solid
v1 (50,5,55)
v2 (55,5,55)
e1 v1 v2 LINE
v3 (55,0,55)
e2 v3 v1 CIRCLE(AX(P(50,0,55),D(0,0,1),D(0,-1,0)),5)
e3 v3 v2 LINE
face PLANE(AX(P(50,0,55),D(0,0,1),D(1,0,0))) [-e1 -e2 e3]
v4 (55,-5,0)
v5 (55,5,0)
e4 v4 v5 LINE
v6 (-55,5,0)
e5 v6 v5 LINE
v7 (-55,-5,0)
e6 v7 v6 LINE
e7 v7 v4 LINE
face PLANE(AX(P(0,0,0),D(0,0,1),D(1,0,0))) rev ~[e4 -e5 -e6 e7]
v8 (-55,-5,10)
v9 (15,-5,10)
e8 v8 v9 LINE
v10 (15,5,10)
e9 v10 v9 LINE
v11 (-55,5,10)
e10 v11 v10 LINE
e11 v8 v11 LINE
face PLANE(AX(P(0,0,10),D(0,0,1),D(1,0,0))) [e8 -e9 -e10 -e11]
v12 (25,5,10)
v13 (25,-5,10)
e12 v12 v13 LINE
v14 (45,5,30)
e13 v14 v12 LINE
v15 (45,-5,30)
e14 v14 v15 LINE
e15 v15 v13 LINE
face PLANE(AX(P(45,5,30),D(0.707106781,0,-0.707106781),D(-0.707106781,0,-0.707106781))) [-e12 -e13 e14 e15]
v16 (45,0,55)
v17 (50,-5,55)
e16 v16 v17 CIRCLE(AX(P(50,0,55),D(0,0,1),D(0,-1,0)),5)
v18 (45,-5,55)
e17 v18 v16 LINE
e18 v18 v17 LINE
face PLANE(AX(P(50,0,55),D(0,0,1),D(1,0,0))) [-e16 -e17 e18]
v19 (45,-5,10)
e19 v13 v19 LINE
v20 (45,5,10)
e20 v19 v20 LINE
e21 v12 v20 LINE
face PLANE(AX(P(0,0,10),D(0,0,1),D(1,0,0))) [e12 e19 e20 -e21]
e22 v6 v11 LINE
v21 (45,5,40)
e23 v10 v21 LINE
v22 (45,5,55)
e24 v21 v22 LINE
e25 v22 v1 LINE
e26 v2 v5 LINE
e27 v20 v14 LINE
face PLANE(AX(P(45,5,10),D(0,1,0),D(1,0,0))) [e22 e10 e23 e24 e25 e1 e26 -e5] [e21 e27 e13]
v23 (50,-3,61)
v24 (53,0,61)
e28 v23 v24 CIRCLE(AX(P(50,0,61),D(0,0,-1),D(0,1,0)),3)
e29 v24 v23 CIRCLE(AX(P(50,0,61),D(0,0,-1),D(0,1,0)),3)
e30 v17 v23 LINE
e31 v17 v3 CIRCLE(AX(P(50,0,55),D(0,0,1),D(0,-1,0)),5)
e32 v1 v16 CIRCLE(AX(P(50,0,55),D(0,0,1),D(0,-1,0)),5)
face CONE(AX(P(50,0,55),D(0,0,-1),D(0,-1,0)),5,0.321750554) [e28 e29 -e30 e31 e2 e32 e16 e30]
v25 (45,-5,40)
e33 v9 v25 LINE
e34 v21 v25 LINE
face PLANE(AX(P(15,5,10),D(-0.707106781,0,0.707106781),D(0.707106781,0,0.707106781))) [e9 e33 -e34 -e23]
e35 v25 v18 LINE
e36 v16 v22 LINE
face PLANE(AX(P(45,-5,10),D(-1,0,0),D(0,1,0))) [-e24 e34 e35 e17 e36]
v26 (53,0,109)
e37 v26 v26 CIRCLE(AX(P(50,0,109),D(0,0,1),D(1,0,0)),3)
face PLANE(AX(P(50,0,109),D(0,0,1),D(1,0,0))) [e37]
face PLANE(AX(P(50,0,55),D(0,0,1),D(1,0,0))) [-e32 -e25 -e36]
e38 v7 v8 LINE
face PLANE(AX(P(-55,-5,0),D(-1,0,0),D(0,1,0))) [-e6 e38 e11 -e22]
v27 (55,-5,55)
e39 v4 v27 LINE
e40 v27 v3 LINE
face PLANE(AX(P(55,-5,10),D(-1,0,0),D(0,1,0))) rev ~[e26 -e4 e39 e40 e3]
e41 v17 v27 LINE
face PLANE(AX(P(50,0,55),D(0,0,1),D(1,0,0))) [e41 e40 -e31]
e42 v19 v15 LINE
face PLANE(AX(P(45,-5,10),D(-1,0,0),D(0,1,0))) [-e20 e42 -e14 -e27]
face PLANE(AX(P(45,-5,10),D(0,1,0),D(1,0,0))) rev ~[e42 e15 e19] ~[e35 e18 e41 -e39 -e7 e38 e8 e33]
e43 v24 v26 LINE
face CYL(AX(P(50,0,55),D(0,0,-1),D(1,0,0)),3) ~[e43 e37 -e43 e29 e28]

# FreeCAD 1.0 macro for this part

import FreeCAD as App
import Part
import Sketcher
from FreeCAD import Vector
Q = App.Units.Quantity

doc = App.newDocument("Part")
params = doc.addObject("Spreadsheet::Sheet", "Params")
for row, (alias, value) in enumerate([
    ("sketch1_width", "110 mm"),
    ("sketch1_height", "10 mm"),
    ("pad1_length", "10 mm"),
    ("sketch2_width", "10 mm"),
    ("pad2_length", "45 mm"),
    ("sketch3_diameter", "6 mm"),
    ("pad3_length", "54 mm"),
    ("sketch4_width", "5 mm"),
    ("sketch4_height", "15 mm"),
    ("revolution_angle", "360 deg"),
    ("sketch5_width", "10 mm"),
    ("pad4_length", "10 mm"),
], start=1):
    params.set(f"A{row}", alias)
    params.set(f"B{row}", "=" + value)
    params.setAlias(f"B{row}", alias)

body = doc.addObject("PartDesign::Body", "Body")

# Sketch on XY plane
sketch1 = body.newObject("Sketcher::SketchObject", "Sketch")
sketch1.AttachmentSupport = (doc.getObject("XY_Plane"), [""])
sketch1.MapMode = "FlatFace"
sketch1.addGeometry([
    Part.LineSegment(Vector(-55, 5, 0), Vector(-55, -5, 0)),
    Part.LineSegment(Vector(-55, -5, 0), Vector(55, -5, 0)),
    Part.LineSegment(Vector(55, -5, 0), Vector(55, 5, 0)),
    Part.LineSegment(Vector(55, 5, 0), Vector(-55, 5, 0)),
], False)
sketch1.addConstraint([
    Sketcher.Constraint("Coincident", 0, 2, 1, 1),
    Sketcher.Constraint("Coincident", 1, 2, 2, 1),
    Sketcher.Constraint("Coincident", 2, 2, 3, 1),
    Sketcher.Constraint("Coincident", 3, 2, 0, 1),
    Sketcher.Constraint("Vertical", 0),
    Sketcher.Constraint("Horizontal", 1),
    Sketcher.Constraint("Vertical", 2),
    Sketcher.Constraint("Horizontal", 3),
    Sketcher.Constraint("Symmetric", 0, 2, 2, 2, -1, 1),
    Sketcher.Constraint("DistanceX", 1, 1, 1, 2, Q("110 mm")),
    Sketcher.Constraint("DistanceY", 0, 2, 0, 1, Q("10 mm")),
])
sketch1.setExpression("Constraints[9]", "Params.sketch1_width")
sketch1.setExpression("Constraints[10]", "Params.sketch1_height")
pad1 = body.newObject("PartDesign::Pad", "Pad")
pad1.Profile = sketch1
pad1.setExpression("Length", "Params.pad1_length")

# Sketch on XY plane
sketch2 = body.newObject("Sketcher::SketchObject", "Sketch001")
sketch2.AttachmentSupport = (doc.getObject("XY_Plane"), [""])
sketch2.MapMode = "FlatFace"
sketch2.AttachmentOffset = App.Placement(Vector(0, 0, 10), App.Rotation())
sketch2.addGeometry([
    Part.LineSegment(Vector(45, 5, 0), Vector(45, -5, 0)),
    Part.LineSegment(Vector(45, -5, 0), Vector(55, -5, 0)),
    Part.LineSegment(Vector(55, -5, 0), Vector(55, 5, 0)),
    Part.LineSegment(Vector(55, 5, 0), Vector(45, 5, 0)),
], False)
sketch2.addConstraint([
    Sketcher.Constraint("Coincident", 0, 2, 1, 1),
    Sketcher.Constraint("Coincident", 1, 2, 2, 1),
    Sketcher.Constraint("Coincident", 2, 2, 3, 1),
    Sketcher.Constraint("Coincident", 3, 2, 0, 1),
    Sketcher.Constraint("Vertical", 0),
    Sketcher.Constraint("Horizontal", 1),
    Sketcher.Constraint("Vertical", 2),
    Sketcher.Constraint("Horizontal", 3),
    Sketcher.Constraint("Equal", 3, 0),
    Sketcher.Constraint("DistanceX", 1, 1, 1, 2, Q("10 mm")),
    Sketcher.Constraint("DistanceX", -1, 1, 0, 2, Q("45 mm")),
    Sketcher.Constraint("DistanceY", 0, 2, -1, 1, Q("5 mm")),
])
sketch2.setExpression("Constraints[9]", "Params.sketch2_width")
pad2 = body.newObject("PartDesign::Pad", "Pad001")
pad2.Profile = sketch2
pad2.setExpression("Length", "Params.pad2_length")

# Sketch on XY plane
sketch3 = body.newObject("Sketcher::SketchObject", "Sketch002")
sketch3.AttachmentSupport = (doc.getObject("XY_Plane"), [""])
sketch3.MapMode = "FlatFace"
sketch3.AttachmentOffset = App.Placement(Vector(0, 0, 55), App.Rotation())
sketch3.addGeometry(Part.Circle(Vector(50, 0, 0), Vector(0, 0, 1), 3), False)
sketch3.addConstraint([
    Sketcher.Constraint("PointOnObject", 0, 3, -1),
    Sketcher.Constraint("Diameter", 0, Q("6 mm")),
    Sketcher.Constraint("DistanceX", -1, 1, 0, 3, Q("50 mm")),
])
sketch3.setExpression("Constraints[1]", "Params.sketch3_diameter")
pad3 = body.newObject("PartDesign::Pad", "Pad002")
pad3.Profile = sketch3
pad3.setExpression("Length", "Params.pad3_length")

# Sketch on YZ plane
sketch4 = body.newObject("Sketcher::SketchObject", "Sketch003")
sketch4.AttachmentSupport = (doc.getObject("YZ_Plane"), [""])
sketch4.MapMode = "FlatFace"
sketch4.AttachmentOffset = App.Placement(Vector(0, 0, 50), App.Rotation())
sketch4.addGeometry([
    Part.LineSegment(Vector(0, 70, 0), Vector(0, 55, 0)),
    Part.LineSegment(Vector(0, 55, 0), Vector(-5, 55, 0)),
    Part.LineSegment(Vector(-5, 55, 0), Vector(0, 70, 0)),
], False)
sketch4.addConstraint([
    Sketcher.Constraint("Coincident", 0, 2, 1, 1),
    Sketcher.Constraint("Coincident", 1, 2, 2, 1),
    Sketcher.Constraint("Coincident", 2, 2, 0, 1),
    Sketcher.Constraint("Vertical", 0),
    Sketcher.Constraint("Horizontal", 1),
    Sketcher.Constraint("PointOnObject", 0, 2, -2),
    Sketcher.Constraint("DistanceX", 1, 2, 1, 1, Q("5 mm")),
    Sketcher.Constraint("DistanceY", 0, 2, 0, 1, Q("15 mm")),
    Sketcher.Constraint("DistanceY", -1, 1, 0, 2, Q("55 mm")),
])
sketch4.setExpression("Constraints[6]", "Params.sketch4_width")
sketch4.setExpression("Constraints[7]", "Params.sketch4_height")
revolution = body.newObject("PartDesign::Revolution", "Revolution")
revolution.Profile = sketch4
revolution.ReferenceAxis = (sketch4, ["V_Axis"])
revolution.setExpression("Angle", "Params.revolution_angle")

# Sketch on XZ plane
sketch5 = body.newObject("Sketcher::SketchObject", "Sketch004")
sketch5.AttachmentSupport = (doc.getObject("XZ_Plane"), [""])
sketch5.MapMode = "FlatFace"
sketch5.AttachmentOffset = App.Placement(Vector(0, 0, -5), App.Rotation())
sketch5.addGeometry([
    Part.LineSegment(Vector(25, 10, 0), Vector(15, 10, 0)),
    Part.LineSegment(Vector(15, 10, 0), Vector(45, 40, 0)),
    Part.LineSegment(Vector(45, 40, 0), Vector(45, 30, 0)),
    Part.LineSegment(Vector(45, 30, 0), Vector(25, 10, 0)),
], False)
sketch5.addConstraint([
    Sketcher.Constraint("Coincident", 0, 2, 1, 1),
    Sketcher.Constraint("Coincident", 1, 2, 2, 1),
    Sketcher.Constraint("Coincident", 2, 2, 3, 1),
    Sketcher.Constraint("Coincident", 3, 2, 0, 1),
    Sketcher.Constraint("Horizontal", 0),
    Sketcher.Constraint("Vertical", 2),
    Sketcher.Constraint("Parallel", 1, 3),
    Sketcher.Constraint("Equal", 0, 2),
    Sketcher.Constraint("DistanceX", 0, 2, 0, 1, Q("10 mm")),
    Sketcher.Constraint("DistanceX", -1, 1, 0, 2, Q("15 mm")),
    Sketcher.Constraint("DistanceY", -1, 1, 0, 2, Q("10 mm")),
    Sketcher.Constraint("DistanceX", -1, 1, 1, 2, Q("45 mm")),
])
sketch5.setExpression("Constraints[8]", "Params.sketch5_width")
pad4 = body.newObject("PartDesign::Pad", "Pad003")
pad4.Profile = sketch5
pad4.setExpression("Length", "Params.pad4_length")

doc.recompute()
